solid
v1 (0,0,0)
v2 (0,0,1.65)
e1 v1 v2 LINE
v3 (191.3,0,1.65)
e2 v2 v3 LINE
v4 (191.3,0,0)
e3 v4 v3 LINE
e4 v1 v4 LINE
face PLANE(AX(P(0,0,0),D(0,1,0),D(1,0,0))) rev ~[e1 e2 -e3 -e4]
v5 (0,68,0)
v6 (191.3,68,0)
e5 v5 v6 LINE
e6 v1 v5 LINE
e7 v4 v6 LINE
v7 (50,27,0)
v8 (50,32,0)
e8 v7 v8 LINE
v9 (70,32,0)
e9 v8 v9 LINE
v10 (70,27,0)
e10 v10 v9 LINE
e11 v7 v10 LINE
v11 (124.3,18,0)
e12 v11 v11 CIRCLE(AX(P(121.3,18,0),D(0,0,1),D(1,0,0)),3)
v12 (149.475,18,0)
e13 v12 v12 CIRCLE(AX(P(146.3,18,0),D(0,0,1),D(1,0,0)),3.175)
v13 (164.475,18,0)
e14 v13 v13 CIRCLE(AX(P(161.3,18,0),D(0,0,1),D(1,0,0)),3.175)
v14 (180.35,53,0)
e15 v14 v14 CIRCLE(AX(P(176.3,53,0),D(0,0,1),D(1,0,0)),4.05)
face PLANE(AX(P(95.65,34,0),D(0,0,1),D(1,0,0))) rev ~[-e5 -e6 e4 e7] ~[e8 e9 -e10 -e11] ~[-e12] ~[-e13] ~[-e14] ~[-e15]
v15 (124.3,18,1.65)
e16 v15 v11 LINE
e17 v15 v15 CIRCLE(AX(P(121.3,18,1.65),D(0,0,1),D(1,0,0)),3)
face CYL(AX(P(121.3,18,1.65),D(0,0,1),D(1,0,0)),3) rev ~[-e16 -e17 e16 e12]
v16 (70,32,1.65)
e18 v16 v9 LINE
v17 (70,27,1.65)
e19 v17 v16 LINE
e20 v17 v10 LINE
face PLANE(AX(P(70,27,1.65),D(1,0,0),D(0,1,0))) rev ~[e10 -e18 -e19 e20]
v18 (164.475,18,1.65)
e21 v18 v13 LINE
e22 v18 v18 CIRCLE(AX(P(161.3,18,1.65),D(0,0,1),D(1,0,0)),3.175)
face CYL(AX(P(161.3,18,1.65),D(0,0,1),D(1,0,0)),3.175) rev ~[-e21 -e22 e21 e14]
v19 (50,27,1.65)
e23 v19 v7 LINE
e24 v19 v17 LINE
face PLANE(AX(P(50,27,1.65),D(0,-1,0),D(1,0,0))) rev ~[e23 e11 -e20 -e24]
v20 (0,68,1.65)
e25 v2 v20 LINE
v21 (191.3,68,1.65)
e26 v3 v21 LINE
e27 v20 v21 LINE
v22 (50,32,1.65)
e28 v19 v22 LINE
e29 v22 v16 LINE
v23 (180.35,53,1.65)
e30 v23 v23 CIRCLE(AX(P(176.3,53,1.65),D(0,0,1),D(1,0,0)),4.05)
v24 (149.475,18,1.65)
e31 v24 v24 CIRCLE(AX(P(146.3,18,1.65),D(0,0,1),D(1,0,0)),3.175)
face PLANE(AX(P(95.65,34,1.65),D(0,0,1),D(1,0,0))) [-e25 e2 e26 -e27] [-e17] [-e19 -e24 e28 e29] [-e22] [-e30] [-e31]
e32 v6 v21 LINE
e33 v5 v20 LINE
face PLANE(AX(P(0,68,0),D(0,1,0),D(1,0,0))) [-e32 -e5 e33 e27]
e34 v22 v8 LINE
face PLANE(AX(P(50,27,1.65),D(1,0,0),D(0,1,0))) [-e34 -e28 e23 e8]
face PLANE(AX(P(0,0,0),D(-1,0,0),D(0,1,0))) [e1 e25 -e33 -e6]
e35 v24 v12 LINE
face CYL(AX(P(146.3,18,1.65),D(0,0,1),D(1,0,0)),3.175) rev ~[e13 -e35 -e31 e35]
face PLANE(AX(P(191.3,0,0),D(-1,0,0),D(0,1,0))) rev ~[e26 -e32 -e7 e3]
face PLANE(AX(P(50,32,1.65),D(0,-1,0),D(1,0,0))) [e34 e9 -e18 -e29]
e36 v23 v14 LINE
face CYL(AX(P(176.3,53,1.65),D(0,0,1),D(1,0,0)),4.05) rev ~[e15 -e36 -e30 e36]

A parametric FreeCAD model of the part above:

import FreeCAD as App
import Part
import Sketcher
from FreeCAD import Vector
Q = App.Units.Quantity


def add_polygon(sketch, points):
    """Adds a closed chain of lines whose ends are joined by coincident constraints."""
    first, n = sketch.GeometryCount, len(points)
    for a, b in zip(points, points[1:] + points[:1]):
        sketch.addGeometry(Part.LineSegment(App.Vector(*a, 0), App.Vector(*b, 0)), False)
    for i in range(n):
        sketch.addConstraint(Sketcher.Constraint("Coincident", first + i, 2, first + (i + 1) % n, 1))

doc = App.newDocument("Part")
body = doc.addObject("PartDesign::Body", "Body")

# Sketch on XY plane
sketch1 = body.newObject("Sketcher::SketchObject", "Sketch")
sketch1.AttachmentSupport = (doc.getObject("XY_Plane"), [""])
sketch1.MapMode = "FlatFace"
add_polygon(sketch1, [(0, 68), (0, 0), (191, 0), (191, 68)])  # lines 0-3
sketch1.addConstraint([
    Sketcher.Constraint("Vertical", 0),
    Sketcher.Constraint("Horizontal", 1),
    Sketcher.Constraint("Vertical", 2),
    Sketcher.Constraint("Horizontal", 3),
    Sketcher.Constraint("Coincident", 0, 2, -1, 1),
    Sketcher.Constraint("DistanceY", 0, 2, 0, 1, Q("68 mm")),
    Sketcher.Constraint("DistanceX", 1, 1, 1, 2, Q("191.3 mm")),
])
pad1 = body.newObject("PartDesign::Pad", "Pad")
pad1.Profile = sketch1
pad1.Length = 1.65

# Sketch on XY plane
sketch2 = body.newObject("Sketcher::SketchObject", "Sketch001")
sketch2.AttachmentSupport = (doc.getObject("XY_Plane"), [""])
sketch2.MapMode = "FlatFace"
sketch2.AttachmentOffset = App.Placement(Vector(0, 0, 1.65), App.Rotation())
sketch2.addGeometry(Part.Circle(Vector(176.3, 53, 0), Vector(0, 0, 1), 4), False)  # 0
sketch2.addGeometry(Part.Circle(Vector(121.3, 18, 0), Vector(0, 0, 1), 3), False)  # 1
sketch2.addGeometry(Part.Circle(Vector(146.3, 18, 0), Vector(0, 0, 1), 3.2), False)  # 2
sketch2.addGeometry(Part.Circle(Vector(161.3, 18, 0), Vector(0, 0, 1), 3.2), False)  # 3
add_polygon(sketch2, [(50, 32), (50, 27), (70, 27), (70, 32)])  # lines 4-7
sketch2.addConstraint([
    Sketcher.Constraint("Vertical", 4),
    Sketcher.Constraint("Horizontal", 5),
    Sketcher.Constraint("Vertical", 6),
    Sketcher.Constraint("Horizontal", 7),
    Sketcher.Constraint("Equal", 2, 3),
    Sketcher.Constraint("Horizontal", 1, 3, 2, 3),
    Sketcher.Constraint("Horizontal", 2, 3, 3, 3),
    Sketcher.Constraint("Diameter", 1, Q("6 mm")),
    Sketcher.Constraint("Diameter", 0, Q("8.1 mm")),
    Sketcher.Constraint("Diameter", 2, Q("6.35 mm")),
    Sketcher.Constraint("DistanceX", 5, 1, 5, 2, Q("20 mm")),
    Sketcher.Constraint("DistanceY", 4, 2, 4, 1, Q("5 mm")),
    Sketcher.Constraint("DistanceY", -1, 1, 0, 3, Q("53 mm")),
    Sketcher.Constraint("DistanceY", -1, 1, 1, 3, Q("18 mm")),
    Sketcher.Constraint("DistanceX", -1, 1, 4, 2, Q("50 mm")),
    Sketcher.Constraint("DistanceY", -1, 1, 4, 2, Q("27 mm")),
    Sketcher.Constraint("DistanceX", 1, 3, 0, 3, Q("55 mm")),
    Sketcher.Constraint("DistanceX", 1, 3, 2, 3, Q("25 mm")),
    Sketcher.Constraint("DistanceX", 2, 3, 3, 3, Q("15 mm")),
    Sketcher.Constraint("DistanceX", -1, 1, 0, 3, Q("176.3 mm")),
])
pocket1 = body.newObject("PartDesign::Pocket", "Pocket")
pocket1.Profile = sketch2
pocket1.Length = 5

doc.recompute()
